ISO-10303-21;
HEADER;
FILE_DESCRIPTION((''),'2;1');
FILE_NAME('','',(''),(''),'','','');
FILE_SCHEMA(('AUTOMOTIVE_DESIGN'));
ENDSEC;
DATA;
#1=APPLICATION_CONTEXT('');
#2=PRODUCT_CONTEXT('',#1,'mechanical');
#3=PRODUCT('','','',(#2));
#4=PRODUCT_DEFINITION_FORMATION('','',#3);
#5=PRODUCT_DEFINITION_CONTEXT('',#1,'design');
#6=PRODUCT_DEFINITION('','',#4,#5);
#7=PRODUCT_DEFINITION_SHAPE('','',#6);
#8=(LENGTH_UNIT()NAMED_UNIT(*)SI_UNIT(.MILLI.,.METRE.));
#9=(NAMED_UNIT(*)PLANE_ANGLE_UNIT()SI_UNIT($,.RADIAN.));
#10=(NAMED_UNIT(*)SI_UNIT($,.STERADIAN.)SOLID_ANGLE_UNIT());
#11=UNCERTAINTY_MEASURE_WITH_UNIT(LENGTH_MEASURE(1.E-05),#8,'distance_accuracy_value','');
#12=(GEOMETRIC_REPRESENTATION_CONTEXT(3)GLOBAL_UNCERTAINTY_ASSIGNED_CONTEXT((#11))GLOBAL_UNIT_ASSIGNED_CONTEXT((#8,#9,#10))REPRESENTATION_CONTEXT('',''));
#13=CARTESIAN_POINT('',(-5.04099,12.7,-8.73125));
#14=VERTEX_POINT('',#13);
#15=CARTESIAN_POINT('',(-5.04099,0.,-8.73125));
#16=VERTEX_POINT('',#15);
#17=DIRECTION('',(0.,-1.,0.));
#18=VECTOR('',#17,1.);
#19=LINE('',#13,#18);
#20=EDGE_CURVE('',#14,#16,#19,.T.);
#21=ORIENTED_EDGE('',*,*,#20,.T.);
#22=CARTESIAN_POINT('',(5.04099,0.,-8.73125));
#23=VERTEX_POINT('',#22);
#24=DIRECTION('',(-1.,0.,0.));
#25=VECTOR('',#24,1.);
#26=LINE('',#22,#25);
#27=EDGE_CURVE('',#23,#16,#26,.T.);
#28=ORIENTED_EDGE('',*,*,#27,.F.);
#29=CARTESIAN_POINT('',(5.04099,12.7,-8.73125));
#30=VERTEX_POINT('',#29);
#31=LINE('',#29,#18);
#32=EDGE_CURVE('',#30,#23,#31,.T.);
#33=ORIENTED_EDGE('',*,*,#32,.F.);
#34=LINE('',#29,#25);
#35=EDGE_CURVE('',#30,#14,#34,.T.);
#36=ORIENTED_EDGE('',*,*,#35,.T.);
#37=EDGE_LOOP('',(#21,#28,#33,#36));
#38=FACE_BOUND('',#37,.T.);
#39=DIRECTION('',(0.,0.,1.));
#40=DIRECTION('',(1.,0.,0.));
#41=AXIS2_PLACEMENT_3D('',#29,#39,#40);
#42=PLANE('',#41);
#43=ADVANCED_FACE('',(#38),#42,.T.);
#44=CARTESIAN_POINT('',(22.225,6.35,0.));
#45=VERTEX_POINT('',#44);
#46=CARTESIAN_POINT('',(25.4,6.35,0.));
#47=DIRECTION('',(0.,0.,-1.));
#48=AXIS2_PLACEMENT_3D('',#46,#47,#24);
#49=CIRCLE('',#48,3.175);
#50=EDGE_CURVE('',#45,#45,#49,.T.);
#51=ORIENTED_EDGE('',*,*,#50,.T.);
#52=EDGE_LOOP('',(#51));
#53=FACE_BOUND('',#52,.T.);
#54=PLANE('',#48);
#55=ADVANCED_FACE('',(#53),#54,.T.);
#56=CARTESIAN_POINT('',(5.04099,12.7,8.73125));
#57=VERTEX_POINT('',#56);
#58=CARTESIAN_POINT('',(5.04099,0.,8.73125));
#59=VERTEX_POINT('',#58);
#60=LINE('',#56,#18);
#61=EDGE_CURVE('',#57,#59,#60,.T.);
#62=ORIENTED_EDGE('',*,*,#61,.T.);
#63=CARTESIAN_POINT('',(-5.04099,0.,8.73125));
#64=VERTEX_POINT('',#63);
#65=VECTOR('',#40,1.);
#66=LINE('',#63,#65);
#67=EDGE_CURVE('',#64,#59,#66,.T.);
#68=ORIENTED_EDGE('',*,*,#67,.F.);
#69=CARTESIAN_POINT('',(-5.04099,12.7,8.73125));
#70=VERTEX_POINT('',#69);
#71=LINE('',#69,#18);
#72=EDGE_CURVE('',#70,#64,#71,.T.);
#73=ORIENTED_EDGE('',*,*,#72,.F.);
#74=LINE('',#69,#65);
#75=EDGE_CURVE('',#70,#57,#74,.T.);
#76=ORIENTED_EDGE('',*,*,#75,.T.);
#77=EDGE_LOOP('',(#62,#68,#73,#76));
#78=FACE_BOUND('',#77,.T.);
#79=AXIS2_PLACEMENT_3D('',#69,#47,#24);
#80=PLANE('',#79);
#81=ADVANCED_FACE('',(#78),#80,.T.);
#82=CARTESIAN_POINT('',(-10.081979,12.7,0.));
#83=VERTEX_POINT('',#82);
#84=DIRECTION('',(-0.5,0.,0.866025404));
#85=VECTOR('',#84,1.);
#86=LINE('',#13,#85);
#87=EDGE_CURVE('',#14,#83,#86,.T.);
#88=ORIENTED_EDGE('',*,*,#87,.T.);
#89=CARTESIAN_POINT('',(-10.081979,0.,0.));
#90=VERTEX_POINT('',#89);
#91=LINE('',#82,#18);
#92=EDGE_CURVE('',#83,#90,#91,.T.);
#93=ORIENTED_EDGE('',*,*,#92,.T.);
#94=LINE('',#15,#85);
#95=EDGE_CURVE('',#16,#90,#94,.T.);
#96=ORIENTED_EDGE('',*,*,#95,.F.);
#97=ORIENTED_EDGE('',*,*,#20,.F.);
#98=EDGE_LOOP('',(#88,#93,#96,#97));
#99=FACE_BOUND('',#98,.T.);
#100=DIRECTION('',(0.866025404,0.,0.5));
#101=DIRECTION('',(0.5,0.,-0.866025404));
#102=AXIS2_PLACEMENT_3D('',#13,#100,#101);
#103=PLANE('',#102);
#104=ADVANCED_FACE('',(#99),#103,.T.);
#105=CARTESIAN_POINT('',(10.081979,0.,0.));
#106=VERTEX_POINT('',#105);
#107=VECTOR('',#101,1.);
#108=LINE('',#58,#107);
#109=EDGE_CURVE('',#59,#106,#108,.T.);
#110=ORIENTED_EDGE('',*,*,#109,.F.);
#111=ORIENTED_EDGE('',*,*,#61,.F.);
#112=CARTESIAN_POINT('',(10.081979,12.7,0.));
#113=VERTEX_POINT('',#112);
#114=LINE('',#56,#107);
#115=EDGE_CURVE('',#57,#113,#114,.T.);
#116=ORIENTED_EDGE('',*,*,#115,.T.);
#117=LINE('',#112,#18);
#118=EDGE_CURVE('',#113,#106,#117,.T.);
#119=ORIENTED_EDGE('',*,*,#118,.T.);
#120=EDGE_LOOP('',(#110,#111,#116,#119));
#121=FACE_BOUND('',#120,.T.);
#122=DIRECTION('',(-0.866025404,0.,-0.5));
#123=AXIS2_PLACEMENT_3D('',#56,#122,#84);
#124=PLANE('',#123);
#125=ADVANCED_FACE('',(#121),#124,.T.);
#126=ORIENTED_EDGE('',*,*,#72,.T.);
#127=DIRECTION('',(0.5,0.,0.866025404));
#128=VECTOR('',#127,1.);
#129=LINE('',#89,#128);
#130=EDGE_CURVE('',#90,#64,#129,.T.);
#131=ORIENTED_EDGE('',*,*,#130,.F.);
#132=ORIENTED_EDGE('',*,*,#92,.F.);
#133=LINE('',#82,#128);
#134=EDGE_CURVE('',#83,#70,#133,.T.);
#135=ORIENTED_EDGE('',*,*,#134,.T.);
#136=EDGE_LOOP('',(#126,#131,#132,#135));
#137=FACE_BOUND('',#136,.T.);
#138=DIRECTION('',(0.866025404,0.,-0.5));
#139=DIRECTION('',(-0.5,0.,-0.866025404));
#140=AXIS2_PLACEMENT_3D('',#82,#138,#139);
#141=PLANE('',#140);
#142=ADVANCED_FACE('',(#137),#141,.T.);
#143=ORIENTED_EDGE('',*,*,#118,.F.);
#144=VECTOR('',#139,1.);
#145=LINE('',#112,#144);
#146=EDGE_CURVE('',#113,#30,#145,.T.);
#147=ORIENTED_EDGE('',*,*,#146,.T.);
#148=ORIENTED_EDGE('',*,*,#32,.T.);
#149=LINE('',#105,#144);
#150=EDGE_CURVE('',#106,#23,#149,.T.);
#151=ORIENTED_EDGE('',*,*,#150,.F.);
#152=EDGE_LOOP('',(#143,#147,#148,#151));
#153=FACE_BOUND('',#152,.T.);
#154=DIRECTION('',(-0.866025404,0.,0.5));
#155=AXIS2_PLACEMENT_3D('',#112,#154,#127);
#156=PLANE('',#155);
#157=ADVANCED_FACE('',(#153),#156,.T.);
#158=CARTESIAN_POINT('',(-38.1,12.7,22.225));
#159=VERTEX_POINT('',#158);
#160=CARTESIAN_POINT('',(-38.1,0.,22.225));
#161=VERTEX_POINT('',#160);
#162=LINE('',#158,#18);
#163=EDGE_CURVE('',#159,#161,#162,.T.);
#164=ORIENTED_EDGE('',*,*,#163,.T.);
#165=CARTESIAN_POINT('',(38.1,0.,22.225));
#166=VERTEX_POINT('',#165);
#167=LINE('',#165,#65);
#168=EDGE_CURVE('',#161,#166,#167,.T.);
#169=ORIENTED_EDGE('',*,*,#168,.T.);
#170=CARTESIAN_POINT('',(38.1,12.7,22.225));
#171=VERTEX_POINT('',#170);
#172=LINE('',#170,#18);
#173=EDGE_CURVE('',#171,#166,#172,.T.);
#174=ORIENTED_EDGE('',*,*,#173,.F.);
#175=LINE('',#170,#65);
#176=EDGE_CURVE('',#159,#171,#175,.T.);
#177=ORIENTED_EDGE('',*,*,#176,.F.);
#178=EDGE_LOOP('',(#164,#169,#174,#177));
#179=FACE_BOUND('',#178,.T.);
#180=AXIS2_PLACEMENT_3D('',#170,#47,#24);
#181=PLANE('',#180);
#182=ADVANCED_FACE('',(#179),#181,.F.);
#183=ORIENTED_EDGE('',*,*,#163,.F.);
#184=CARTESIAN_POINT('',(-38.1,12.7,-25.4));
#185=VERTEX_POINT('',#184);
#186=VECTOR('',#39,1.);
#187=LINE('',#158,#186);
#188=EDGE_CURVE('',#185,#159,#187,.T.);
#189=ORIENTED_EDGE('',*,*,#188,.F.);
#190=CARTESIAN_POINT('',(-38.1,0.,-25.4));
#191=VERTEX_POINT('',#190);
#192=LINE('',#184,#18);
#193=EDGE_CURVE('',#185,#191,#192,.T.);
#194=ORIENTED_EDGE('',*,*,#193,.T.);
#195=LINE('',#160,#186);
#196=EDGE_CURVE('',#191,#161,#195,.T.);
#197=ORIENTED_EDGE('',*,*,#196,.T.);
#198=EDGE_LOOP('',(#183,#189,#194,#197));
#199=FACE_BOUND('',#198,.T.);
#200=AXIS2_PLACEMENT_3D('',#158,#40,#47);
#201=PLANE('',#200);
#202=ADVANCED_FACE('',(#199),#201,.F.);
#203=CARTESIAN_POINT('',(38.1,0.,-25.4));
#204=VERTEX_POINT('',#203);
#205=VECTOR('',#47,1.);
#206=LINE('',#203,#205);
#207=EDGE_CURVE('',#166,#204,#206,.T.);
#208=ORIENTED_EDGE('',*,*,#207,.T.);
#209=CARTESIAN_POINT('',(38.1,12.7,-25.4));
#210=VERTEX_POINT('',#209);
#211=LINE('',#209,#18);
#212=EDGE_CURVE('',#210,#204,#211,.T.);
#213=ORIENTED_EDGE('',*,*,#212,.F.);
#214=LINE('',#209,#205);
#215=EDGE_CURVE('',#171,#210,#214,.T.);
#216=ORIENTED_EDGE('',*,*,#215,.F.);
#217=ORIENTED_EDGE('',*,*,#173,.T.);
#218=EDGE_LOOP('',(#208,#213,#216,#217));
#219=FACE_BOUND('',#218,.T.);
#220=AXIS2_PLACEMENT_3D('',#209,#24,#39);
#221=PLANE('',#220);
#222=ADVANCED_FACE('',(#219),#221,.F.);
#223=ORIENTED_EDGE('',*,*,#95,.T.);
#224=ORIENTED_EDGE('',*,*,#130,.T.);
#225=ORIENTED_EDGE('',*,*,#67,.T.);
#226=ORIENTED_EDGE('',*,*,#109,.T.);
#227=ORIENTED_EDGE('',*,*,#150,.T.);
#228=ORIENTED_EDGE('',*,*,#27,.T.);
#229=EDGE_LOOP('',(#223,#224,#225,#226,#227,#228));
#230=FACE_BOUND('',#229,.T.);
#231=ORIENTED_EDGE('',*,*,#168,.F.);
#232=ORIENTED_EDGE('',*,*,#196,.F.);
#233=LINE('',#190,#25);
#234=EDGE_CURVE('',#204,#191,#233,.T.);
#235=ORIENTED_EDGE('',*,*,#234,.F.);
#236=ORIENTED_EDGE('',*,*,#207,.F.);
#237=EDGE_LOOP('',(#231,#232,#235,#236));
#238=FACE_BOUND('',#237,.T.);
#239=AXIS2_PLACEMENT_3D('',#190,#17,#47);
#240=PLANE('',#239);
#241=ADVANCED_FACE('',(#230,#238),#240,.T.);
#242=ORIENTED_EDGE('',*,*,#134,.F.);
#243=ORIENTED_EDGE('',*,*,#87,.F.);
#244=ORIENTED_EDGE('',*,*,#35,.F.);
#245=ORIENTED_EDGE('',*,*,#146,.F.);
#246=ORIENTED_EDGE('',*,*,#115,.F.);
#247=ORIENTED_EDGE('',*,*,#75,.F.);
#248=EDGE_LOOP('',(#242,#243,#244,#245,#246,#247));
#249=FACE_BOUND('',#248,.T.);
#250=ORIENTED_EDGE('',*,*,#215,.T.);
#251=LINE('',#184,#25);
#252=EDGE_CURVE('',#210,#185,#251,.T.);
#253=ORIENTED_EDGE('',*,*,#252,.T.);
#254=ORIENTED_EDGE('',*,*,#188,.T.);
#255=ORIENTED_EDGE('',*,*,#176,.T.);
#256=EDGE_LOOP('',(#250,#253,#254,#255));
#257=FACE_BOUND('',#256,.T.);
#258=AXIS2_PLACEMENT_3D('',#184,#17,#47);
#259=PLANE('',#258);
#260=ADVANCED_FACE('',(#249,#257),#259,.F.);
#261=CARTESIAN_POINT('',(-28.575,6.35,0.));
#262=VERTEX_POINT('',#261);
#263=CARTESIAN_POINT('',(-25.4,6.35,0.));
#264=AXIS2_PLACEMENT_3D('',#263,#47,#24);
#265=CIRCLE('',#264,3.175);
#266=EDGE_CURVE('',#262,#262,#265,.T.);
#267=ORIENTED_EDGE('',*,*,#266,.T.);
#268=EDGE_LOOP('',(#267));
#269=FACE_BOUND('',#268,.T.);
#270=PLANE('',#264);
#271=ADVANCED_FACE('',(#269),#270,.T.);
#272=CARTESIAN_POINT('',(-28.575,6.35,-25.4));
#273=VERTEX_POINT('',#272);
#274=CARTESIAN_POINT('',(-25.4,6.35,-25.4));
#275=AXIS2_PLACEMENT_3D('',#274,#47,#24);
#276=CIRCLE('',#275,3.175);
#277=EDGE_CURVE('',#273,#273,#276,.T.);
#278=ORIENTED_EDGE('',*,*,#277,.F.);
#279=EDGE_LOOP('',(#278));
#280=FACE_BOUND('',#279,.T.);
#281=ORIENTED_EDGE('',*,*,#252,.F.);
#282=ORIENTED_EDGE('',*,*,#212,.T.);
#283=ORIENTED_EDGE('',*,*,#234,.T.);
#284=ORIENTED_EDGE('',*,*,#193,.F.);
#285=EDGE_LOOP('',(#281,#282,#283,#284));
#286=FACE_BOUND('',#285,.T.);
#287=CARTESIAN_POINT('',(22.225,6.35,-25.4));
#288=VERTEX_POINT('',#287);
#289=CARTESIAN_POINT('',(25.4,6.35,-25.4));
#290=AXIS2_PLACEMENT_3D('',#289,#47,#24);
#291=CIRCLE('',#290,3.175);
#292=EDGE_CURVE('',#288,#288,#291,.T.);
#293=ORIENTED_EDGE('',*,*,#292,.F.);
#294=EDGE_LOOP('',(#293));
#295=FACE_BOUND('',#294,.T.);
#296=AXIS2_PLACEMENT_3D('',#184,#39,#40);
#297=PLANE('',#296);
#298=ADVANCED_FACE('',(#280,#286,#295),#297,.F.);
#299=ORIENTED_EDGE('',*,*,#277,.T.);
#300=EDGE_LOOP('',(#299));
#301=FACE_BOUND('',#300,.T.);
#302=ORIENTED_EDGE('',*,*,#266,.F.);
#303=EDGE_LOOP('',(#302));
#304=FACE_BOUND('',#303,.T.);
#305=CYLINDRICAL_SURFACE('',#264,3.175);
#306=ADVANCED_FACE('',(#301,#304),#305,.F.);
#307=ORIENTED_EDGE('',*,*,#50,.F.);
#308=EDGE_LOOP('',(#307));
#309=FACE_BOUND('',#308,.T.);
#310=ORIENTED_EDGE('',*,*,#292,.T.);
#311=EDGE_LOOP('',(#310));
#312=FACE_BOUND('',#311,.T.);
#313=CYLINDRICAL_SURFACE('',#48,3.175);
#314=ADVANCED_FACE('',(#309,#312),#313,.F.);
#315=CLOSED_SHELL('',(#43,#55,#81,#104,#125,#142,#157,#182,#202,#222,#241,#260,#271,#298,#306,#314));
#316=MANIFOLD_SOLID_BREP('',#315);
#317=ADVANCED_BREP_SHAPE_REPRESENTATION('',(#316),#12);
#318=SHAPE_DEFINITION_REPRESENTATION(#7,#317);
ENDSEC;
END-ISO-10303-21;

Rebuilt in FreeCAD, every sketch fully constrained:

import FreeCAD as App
import Part
import Sketcher

V = App.Vector
Q = App.Units.Quantity

doc = App.newDocument("Part")
body = doc.addObject("PartDesign::Body", "Body")

# Sketch on XZ plane
sketch1 = body.newObject("Sketcher::SketchObject", "Sketch")
sketch1.AttachmentSupport = (doc.getObject("XZ_Plane"), [""])
sketch1.MapMode = "FlatFace"
sketch1.addGeometry([
    Part.LineSegment(V(-38.1, -25.4, 0), V(-38.1, 22.225, 0)),  # 0
    Part.LineSegment(V(-38.1, 22.225, 0), V(38.1, 22.225, 0)),  # 1
    Part.LineSegment(V(38.1, 22.225, 0), V(38.1, -25.4, 0)),  # 2
    Part.LineSegment(V(38.1, -25.4, 0), V(-38.1, -25.4, 0)),  # 3
    Part.LineSegment(V(5.04099, -8.73125, 0), V(10.081979, 0, 0)),  # 4
    Part.LineSegment(V(10.081979, 0, 0), V(5.04099, 8.73125, 0)),  # 5
    Part.LineSegment(V(5.04099, 8.73125, 0), V(-5.04099, 8.73125, 0)),  # 6
    Part.LineSegment(V(-5.04099, 8.73125, 0), V(-10.081979, 0, 0)),  # 7
    Part.LineSegment(V(-10.081979, 0, 0), V(-5.04099, -8.73125, 0)),  # 8
    Part.LineSegment(V(-5.04099, -8.73125, 0), V(5.04099, -8.73125, 0)),  # 9
], False)
sketch1.addConstraint([
    Sketcher.Constraint("Coincident", 0, 2, 1, 1),
    Sketcher.Constraint("Coincident", 1, 2, 2, 1),
    Sketcher.Constraint("Coincident", 2, 2, 3, 1),
    Sketcher.Constraint("Coincident", 3, 2, 0, 1),
    Sketcher.Constraint("Coincident", 4, 2, 5, 1),
    Sketcher.Constraint("Coincident", 5, 2, 6, 1),
    Sketcher.Constraint("Coincident", 6, 2, 7, 1),
    Sketcher.Constraint("Coincident", 7, 2, 8, 1),
    Sketcher.Constraint("Coincident", 8, 2, 9, 1),
    Sketcher.Constraint("Coincident", 9, 2, 4, 1),
    Sketcher.Constraint("Vertical", 0),
    Sketcher.Constraint("Horizontal", 1),
    Sketcher.Constraint("Vertical", 2),
    Sketcher.Constraint("Horizontal", 3),
    Sketcher.Constraint("Horizontal", 6),
    Sketcher.Constraint("Horizontal", 9),
    Sketcher.Constraint("Symmetric", 4, 2, 7, 2, -1, 1),
    Sketcher.Constraint("Symmetric", 5, 2, 8, 2, -1, 1),
    Sketcher.Constraint("PointOnObject", 4, 2, -1),
    Sketcher.Constraint("Parallel", 4, 7),
    Sketcher.Constraint("Vertical", 6, 2, 8, 2),
    Sketcher.Constraint("DistanceX", 1, 1, 1, 2, Q("3 in")),
    Sketcher.Constraint("DistanceY", 2, 2, -1, 1, Q("1 in")),
    Sketcher.Constraint("Angle", 4, Q("60 deg")),
    Sketcher.Constraint("DistanceX", 0, 2, -1, 1, Q("1.5 in")),
    Sketcher.Constraint("DistanceY", 0, 1, 0, 2, Q("1.875 in")),
    Sketcher.Constraint("DistanceY", -1, 1, 5, 2, Q("0.34375 in")),
    Sketcher.Constraint("DistanceX", 6, 2, 6, 1, 10.081979),
])
pad1 = body.newObject("PartDesign::Pad", "Pad")
pad1.Profile = sketch1
pad1.Length = Q("0.5 in")
pad1.Reversed = True

# Sketch on XY plane
sketch2 = body.newObject("Sketcher::SketchObject", "Sketch001")
sketch2.AttachmentSupport = (doc.getObject("XY_Plane"), [""])
sketch2.MapMode = "FlatFace"
sketch2.AttachmentOffset = App.Placement(V(0, 0, -1 * 25.4), App.Rotation())
sketch2.addGeometry([
    Part.Circle(V(25.4, 6.35, 0), V(0, 0, 1), 3.175),
    Part.Circle(V(-25.4, 6.35, 0), V(0, 0, 1), 3.175),
], False)
sketch2.addConstraint([
    Sketcher.Constraint("Equal", 0, 1),
    Sketcher.Constraint("Symmetric", 0, 3, 1, 3, -2),
    Sketcher.Constraint("Diameter", 0, Q("0.25 in")),
    Sketcher.Constraint("DistanceX", -1, 1, 0, 3, Q("1 in")),
    Sketcher.Constraint("DistanceY", -1, 1, 0, 3, Q("0.25 in")),
])
pocket1 = body.newObject("PartDesign::Pocket", "Pocket")
pocket1.Profile = sketch2
pocket1.Length = Q("1 in")
pocket1.Reversed = True

doc.recompute()
